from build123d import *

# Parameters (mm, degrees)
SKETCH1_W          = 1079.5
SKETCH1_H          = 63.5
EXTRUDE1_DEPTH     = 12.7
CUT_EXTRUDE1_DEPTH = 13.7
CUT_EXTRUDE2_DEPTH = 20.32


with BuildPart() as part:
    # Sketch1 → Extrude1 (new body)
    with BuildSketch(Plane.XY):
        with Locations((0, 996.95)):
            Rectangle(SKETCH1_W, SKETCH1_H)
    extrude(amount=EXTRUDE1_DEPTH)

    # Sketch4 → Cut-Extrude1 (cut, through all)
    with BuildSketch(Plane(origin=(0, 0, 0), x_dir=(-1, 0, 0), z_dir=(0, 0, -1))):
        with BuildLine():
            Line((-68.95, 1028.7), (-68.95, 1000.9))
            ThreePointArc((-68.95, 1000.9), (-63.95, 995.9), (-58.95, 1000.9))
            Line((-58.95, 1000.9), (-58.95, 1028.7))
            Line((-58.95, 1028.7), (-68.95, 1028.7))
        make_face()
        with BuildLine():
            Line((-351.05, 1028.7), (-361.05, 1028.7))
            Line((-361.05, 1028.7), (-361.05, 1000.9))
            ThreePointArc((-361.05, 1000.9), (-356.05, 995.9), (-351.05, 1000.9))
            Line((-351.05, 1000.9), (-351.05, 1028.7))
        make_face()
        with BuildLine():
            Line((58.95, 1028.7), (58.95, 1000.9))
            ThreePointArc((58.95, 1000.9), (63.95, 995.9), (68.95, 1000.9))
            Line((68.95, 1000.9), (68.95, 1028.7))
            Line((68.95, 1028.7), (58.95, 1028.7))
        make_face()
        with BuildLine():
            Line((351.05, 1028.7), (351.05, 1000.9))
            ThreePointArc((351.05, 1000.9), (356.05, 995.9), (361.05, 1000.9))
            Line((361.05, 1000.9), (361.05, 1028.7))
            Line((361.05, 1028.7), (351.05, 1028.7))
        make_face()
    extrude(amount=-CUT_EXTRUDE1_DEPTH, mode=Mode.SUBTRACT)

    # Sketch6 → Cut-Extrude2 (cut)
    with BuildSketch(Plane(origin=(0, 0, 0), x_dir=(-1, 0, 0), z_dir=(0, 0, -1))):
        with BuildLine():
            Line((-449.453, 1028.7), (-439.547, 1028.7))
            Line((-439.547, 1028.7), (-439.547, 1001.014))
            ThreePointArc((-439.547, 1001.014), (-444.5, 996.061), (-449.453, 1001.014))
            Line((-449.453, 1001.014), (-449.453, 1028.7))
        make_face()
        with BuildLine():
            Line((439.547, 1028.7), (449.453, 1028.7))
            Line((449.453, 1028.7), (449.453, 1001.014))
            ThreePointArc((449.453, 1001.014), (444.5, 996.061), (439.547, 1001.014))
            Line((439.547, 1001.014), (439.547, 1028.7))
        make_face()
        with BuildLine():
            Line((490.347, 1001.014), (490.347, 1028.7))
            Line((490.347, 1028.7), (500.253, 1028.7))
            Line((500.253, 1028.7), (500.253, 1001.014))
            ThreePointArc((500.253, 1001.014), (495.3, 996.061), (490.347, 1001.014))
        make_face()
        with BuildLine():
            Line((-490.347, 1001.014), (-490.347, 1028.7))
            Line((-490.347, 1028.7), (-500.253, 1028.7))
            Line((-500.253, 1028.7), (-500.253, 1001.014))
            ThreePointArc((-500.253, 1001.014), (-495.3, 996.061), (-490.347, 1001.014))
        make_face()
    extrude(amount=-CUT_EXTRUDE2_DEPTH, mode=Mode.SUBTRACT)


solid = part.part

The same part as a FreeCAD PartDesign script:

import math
import FreeCAD as App
import Part
import Sketcher

V = App.Vector
Q = App.Units.Quantity


def add_polygon(sketch, points):
    """Adds a closed chain of lines whose ends are joined by coincident constraints."""
    first, n = sketch.GeometryCount, len(points)
    for a, b in zip(points, points[1:] + points[:1]):
        sketch.addGeometry(Part.LineSegment(App.Vector(*a, 0), App.Vector(*b, 0)), False)
    for i in range(n):
        sketch.addConstraint(Sketcher.Constraint("Coincident", first + i, 2, first + (i + 1) % n, 1))

doc = App.newDocument("Part")
body = doc.addObject("PartDesign::Body", "Body")

# Sketch on XY plane
sketch1 = doc.addObject("Sketcher::SketchObject", "Sketch")
body.addObject(sketch1)
sketch1.AttachmentSupport = (doc.XY_Plane, [""])
sketch1.MapMode = "FlatFace"
add_polygon(sketch1, [(-540, 1029), (-540, 965), (540, 965), (540, 1029)])  # lines 0-3
sketch1.addConstraint([
    Sketcher.Constraint("Vertical", 0),
    Sketcher.Constraint("Horizontal", 1),
    Sketcher.Constraint("Vertical", 2),
    Sketcher.Constraint("Horizontal", 3),
    Sketcher.Constraint("DistanceX", 1, 1, 1, 2, Q("42.5 in")),
    Sketcher.Constraint("DistanceY", 0, 2, 0, 1, Q("2.5 in")),
    Sketcher.Constraint("DistanceY", -1, 1, 0, 2, Q("38 in")),
    Sketcher.Constraint("DistanceX", 0, 2, -1, 1, Q("21.25 in")),
])
pad1 = doc.addObject("PartDesign::Pad", "Pad")
body.addObject(pad1)
pad1.Profile = sketch1
pad1.Length = Q("0.5 in")

# Sketch on XY plane
sketch2 = doc.addObject("Sketcher::SketchObject", "Sketch001")
body.addObject(sketch2)
sketch2.AttachmentSupport = (doc.XY_Plane, [""])
sketch2.MapMode = "FlatFace"
sketch2.addGeometry([
    Part.LineSegment(V(69, 1029, 0), V(69, 1001, 0)),  # 0
    Part.ArcOfCircle(Part.Circle(V(64, 1001, 0), V(0, 0, 1), 5), math.radians(180), math.radians(360)),  # 1
    Part.LineSegment(V(59, 1001, 0), V(59, 1029, 0)),  # 2
    Part.LineSegment(V(59, 1029, 0), V(69, 1029, 0)),  # 3
    Part.LineSegment(V(351, 1029, 0), V(361, 1029, 0)),  # 4
    Part.LineSegment(V(361, 1029, 0), V(361, 1001, 0)),  # 5
    Part.ArcOfCircle(Part.Circle(V(356, 1001, 0), V(0, 0, 1), 5), math.radians(180), math.radians(360)),  # 6
    Part.LineSegment(V(351, 1001, 0), V(351, 1029, 0)),  # 7
    Part.LineSegment(V(-59, 1029, 0), V(-59, 1001, 0)),  # 8
    Part.ArcOfCircle(Part.Circle(V(-64, 1001, 0), V(0, 0, 1), 5), math.radians(180), math.radians(360)),  # 9
    Part.LineSegment(V(-69, 1001, 0), V(-69, 1029, 0)),  # 10
    Part.LineSegment(V(-69, 1029, 0), V(-59, 1029, 0)),  # 11
    Part.LineSegment(V(-351, 1029, 0), V(-351, 1001, 0)),  # 12
    Part.ArcOfCircle(Part.Circle(V(-356, 1001, 0), V(0, 0, 1), 5), math.radians(180), math.radians(360)),  # 13
    Part.LineSegment(V(-361, 1001, 0), V(-361, 1029, 0)),  # 14
    Part.LineSegment(V(-361, 1029, 0), V(-351, 1029, 0)),  # 15
], False)
sketch2.addConstraint([
    Sketcher.Constraint("Tangent", 0, 2, 1, 2),
    Sketcher.Constraint("Tangent", 1, 1, 2, 1),
    Sketcher.Constraint("Coincident", 2, 2, 3, 1),
    Sketcher.Constraint("Coincident", 3, 2, 0, 1),
    Sketcher.Constraint("Coincident", 4, 2, 5, 1),
    Sketcher.Constraint("Tangent", 5, 2, 6, 2),
    Sketcher.Constraint("Tangent", 6, 1, 7, 1),
    Sketcher.Constraint("Coincident", 7, 2, 4, 1),
    Sketcher.Constraint("Tangent", 8, 2, 9, 2),
    Sketcher.Constraint("Tangent", 9, 1, 10, 1),
    Sketcher.Constraint("Coincident", 10, 2, 11, 1),
    Sketcher.Constraint("Coincident", 11, 2, 8, 1),
    Sketcher.Constraint("Tangent", 12, 2, 13, 2),
    Sketcher.Constraint("Tangent", 13, 1, 14, 1),
    Sketcher.Constraint("Coincident", 14, 2, 15, 1),
    Sketcher.Constraint("Coincident", 15, 2, 12, 1),
    Sketcher.Constraint("Vertical", 0),
    Sketcher.Constraint("Vertical", 2),
    Sketcher.Constraint("Horizontal", 3),
    Sketcher.Constraint("Horizontal", 4),
    Sketcher.Constraint("Vertical", 5),
    Sketcher.Constraint("Vertical", 7),
    Sketcher.Constraint("Vertical", 8),
    Sketcher.Constraint("Vertical", 10),
    Sketcher.Constraint("Horizontal", 11),
    Sketcher.Constraint("Vertical", 12),
    Sketcher.Constraint("Vertical", 14),
    Sketcher.Constraint("Horizontal", 15),
    Sketcher.Constraint("Equal", 1, 6),
    Sketcher.Constraint("Equal", 6, 9),
    Sketcher.Constraint("Equal", 9, 13),
    Sketcher.Constraint("Symmetric", 1, 3, 9, 3, -2),
    Sketcher.Constraint("Symmetric", 6, 3, 13, 3, -2),
    Sketcher.Constraint("Horizontal", 1, 3, 6, 3),
    Sketcher.Constraint("Horizontal", 3, 2, 4, 2),
    Sketcher.Constraint("Horizontal", 7, 2, 10, 2),
    Sketcher.Constraint("Horizontal", 11, 2, 14, 2),
    Sketcher.Constraint("DistanceY", -1, 1, 2, 2, Q("40.5 in")),
    Sketcher.Constraint("DistanceX", 1, 3, 6, 3, Q("11.5 in")),
    Sketcher.Constraint("Radius", 1, 5.0),
    Sketcher.Constraint("DistanceY", 0, 2, 0, 1, 27.8),
    Sketcher.Constraint("DistanceX", -1, 1, 1, 3, 63.95),
])
pocket1 = doc.addObject("PartDesign::Pocket", "Pocket")
body.addObject(pocket1)
pocket1.Profile = sketch2
pocket1.Type = "ThroughAll"
pocket1.Reversed = True

# Sketch on XY plane
sketch3 = doc.addObject("Sketcher::SketchObject", "Sketch002")
body.addObject(sketch3)
sketch3.AttachmentSupport = (doc.XY_Plane, [""])
sketch3.MapMode = "FlatFace"
sketch3.addGeometry([
    Part.LineSegment(V(439.5, 1028.7, 0), V(449.5, 1028.7, 0)),  # 0
    Part.LineSegment(V(449.5, 1028.7, 0), V(449.5, 1001, 0)),  # 1
    Part.ArcOfCircle(Part.Circle(V(444.5, 1001, 0), V(0, 0, 1), 5), math.radians(180), math.radians(360)),  # 2
    Part.LineSegment(V(439.5, 1001, 0), V(439.5, 1028.7, 0)),  # 3
    Part.LineSegment(V(-449.5, 1028.7, 0), V(-439.5, 1028.7, 0)),  # 4
    Part.LineSegment(V(-439.5, 1028.7, 0), V(-439.5, 1001, 0)),  # 5
    Part.ArcOfCircle(Part.Circle(V(-444.5, 1001, 0), V(0, 0, 1), 5), math.radians(180), math.radians(360)),  # 6
    Part.LineSegment(V(-449.5, 1001, 0), V(-449.5, 1028.7, 0)),  # 7
    Part.LineSegment(V(-490.3, 1028.7, 0), V(-490.3, 1001, 0)),  # 8
    Part.ArcOfCircle(Part.Circle(V(-495.3, 1001, 0), V(0, 0, 1), 5), math.radians(180), math.radians(360)),  # 9
    Part.LineSegment(V(-500.3, 1001, 0), V(-500.3, 1028.7, 0)),  # 10
    Part.LineSegment(V(-500.3, 1028.7, 0), V(-490.3, 1028.7, 0)),  # 11
    Part.LineSegment(V(490.3, 1001, 0), V(490.3, 1028.7, 0)),  # 12
    Part.LineSegment(V(490.3, 1028.7, 0), V(500.3, 1028.7, 0)),  # 13
    Part.LineSegment(V(500.3, 1028.7, 0), V(500.3, 1001, 0)),  # 14
    Part.ArcOfCircle(Part.Circle(V(495.3, 1001, 0), V(0, 0, 1), 5), math.radians(180), math.radians(360)),  # 15
], False)
sketch3.addConstraint([
    Sketcher.Constraint("Coincident", 0, 2, 1, 1),
    Sketcher.Constraint("Tangent", 1, 2, 2, 2),
    Sketcher.Constraint("Tangent", 2, 1, 3, 1),
    Sketcher.Constraint("Coincident", 3, 2, 0, 1),
    Sketcher.Constraint("Coincident", 4, 2, 5, 1),
    Sketcher.Constraint("Tangent", 5, 2, 6, 2),
    Sketcher.Constraint("Tangent", 6, 1, 7, 1),
    Sketcher.Constraint("Coincident", 7, 2, 4, 1),
    Sketcher.Constraint("Tangent", 8, 2, 9, 2),
    Sketcher.Constraint("Tangent", 9, 1, 10, 1),
    Sketcher.Constraint("Coincident", 10, 2, 11, 1),
    Sketcher.Constraint("Coincident", 11, 2, 8, 1),
    Sketcher.Constraint("Coincident", 12, 2, 13, 1),
    Sketcher.Constraint("Coincident", 13, 2, 14, 1),
    Sketcher.Constraint("Tangent", 14, 2, 15, 2),
    Sketcher.Constraint("Tangent", 15, 1, 12, 1),
    Sketcher.Constraint("Horizontal", 0),
    Sketcher.Constraint("Vertical", 1),
    Sketcher.Constraint("Vertical", 3),
    Sketcher.Constraint("Horizontal", 4),
    Sketcher.Constraint("Vertical", 5),
    Sketcher.Constraint("Vertical", 7),
    Sketcher.Constraint("Vertical", 8),
    Sketcher.Constraint("Vertical", 10),
    Sketcher.Constraint("Horizontal", 11),
    Sketcher.Constraint("Vertical", 12),
    Sketcher.Constraint("Horizontal", 13),
    Sketcher.Constraint("Vertical", 14),
    Sketcher.Constraint("Equal", 2, 6),
    Sketcher.Constraint("Equal", 6, 9),
    Sketcher.Constraint("Equal", 9, 15),
    Sketcher.Constraint("Symmetric", 2, 3, 6, 3, -2),
    Sketcher.Constraint("Symmetric", 9, 3, 15, 3, -2),
    Sketcher.Constraint("Horizontal", 6, 3, 9, 3),
    Sketcher.Constraint("Horizontal", 3, 2, 4, 2),
    Sketcher.Constraint("Horizontal", 7, 2, 10, 2),
    Sketcher.Constraint("Horizontal", 11, 2, 12, 2),
    Sketcher.Constraint("Radius", 2, Q("0.195 in")),
    Sketcher.Constraint("DistanceX", 6, 3, 2, 3, Q("35 in")),
    Sketcher.Constraint("DistanceX", 9, 3, 6, 3, Q("2 in")),
    Sketcher.Constraint("DistanceY", 1, 2, 1, 1, Q("1.09 in")),
    Sketcher.Constraint("DistanceY", -1, 1, 0, 2, Q("40.5 in")),
])
pocket2 = doc.addObject("PartDesign::Pocket", "Pocket001")
body.addObject(pocket2)
pocket2.Profile = sketch3
pocket2.Length = Q("0.8 in")
pocket2.Reversed = True

doc.recompute()
